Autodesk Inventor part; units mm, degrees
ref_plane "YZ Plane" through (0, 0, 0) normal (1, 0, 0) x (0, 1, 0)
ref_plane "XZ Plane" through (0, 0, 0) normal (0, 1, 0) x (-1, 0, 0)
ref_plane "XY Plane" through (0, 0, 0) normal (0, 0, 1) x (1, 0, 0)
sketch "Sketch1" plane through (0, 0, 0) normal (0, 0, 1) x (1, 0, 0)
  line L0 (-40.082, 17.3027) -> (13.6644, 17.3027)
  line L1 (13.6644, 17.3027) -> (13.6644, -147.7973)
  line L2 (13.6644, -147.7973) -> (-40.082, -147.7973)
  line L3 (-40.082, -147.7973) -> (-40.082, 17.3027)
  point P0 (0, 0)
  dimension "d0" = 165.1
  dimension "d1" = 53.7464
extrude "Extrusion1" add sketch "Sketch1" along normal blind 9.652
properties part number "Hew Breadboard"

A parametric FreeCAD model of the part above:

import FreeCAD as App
import Part
import Sketcher

V = App.Vector
Q = App.Units.Quantity

doc = App.newDocument("Part")
body = doc.addObject("PartDesign::Body", "Body")

sketch1 = doc.addObject("Sketcher::SketchObject", "Sketch")
body.addObject(sketch1)
sketch1.AttachmentSupport = (doc.XY_Plane, [""])
sketch1.MapMode = "FlatFace"
sketch1.addGeometry([
    Part.LineSegment(V(14, 17, 0), V(-40, 17, 0)),
    Part.LineSegment(V(-40, 17, 0), V(-40, -148, 0)),
    Part.LineSegment(V(-40, -148, 0), V(14, -148, 0)),
    Part.LineSegment(V(14, -148, 0), V(14, 17, 0)),
], False)
sketch1.addConstraint([
    Sketcher.Constraint("Coincident", 0, 2, 1, 1),
    Sketcher.Constraint("Coincident", 1, 2, 2, 1),
    Sketcher.Constraint("Coincident", 2, 2, 3, 1),
    Sketcher.Constraint("Coincident", 3, 2, 0, 1),
    Sketcher.Constraint("Horizontal", 0),
    Sketcher.Constraint("Vertical", 1),
    Sketcher.Constraint("Horizontal", 2),
    Sketcher.Constraint("Vertical", 3),
    Sketcher.Constraint("DistanceY", 1, 2, 1, 1, Q("6.5 in")),
    Sketcher.Constraint("DistanceX", 0, 2, 0, 1, Q("2.116 in")),
    Sketcher.Constraint("DistanceY", -1, 1, 0, 2, Q("0.6812 in")),
    Sketcher.Constraint("DistanceX", 0, 2, -1, 1, 40.082),
])
pad1 = doc.addObject("PartDesign::Pad", "Pad")
body.addObject(pad1)
pad1.Profile = sketch1
pad1.Length = Q("0.38 in")

doc.recompute()
